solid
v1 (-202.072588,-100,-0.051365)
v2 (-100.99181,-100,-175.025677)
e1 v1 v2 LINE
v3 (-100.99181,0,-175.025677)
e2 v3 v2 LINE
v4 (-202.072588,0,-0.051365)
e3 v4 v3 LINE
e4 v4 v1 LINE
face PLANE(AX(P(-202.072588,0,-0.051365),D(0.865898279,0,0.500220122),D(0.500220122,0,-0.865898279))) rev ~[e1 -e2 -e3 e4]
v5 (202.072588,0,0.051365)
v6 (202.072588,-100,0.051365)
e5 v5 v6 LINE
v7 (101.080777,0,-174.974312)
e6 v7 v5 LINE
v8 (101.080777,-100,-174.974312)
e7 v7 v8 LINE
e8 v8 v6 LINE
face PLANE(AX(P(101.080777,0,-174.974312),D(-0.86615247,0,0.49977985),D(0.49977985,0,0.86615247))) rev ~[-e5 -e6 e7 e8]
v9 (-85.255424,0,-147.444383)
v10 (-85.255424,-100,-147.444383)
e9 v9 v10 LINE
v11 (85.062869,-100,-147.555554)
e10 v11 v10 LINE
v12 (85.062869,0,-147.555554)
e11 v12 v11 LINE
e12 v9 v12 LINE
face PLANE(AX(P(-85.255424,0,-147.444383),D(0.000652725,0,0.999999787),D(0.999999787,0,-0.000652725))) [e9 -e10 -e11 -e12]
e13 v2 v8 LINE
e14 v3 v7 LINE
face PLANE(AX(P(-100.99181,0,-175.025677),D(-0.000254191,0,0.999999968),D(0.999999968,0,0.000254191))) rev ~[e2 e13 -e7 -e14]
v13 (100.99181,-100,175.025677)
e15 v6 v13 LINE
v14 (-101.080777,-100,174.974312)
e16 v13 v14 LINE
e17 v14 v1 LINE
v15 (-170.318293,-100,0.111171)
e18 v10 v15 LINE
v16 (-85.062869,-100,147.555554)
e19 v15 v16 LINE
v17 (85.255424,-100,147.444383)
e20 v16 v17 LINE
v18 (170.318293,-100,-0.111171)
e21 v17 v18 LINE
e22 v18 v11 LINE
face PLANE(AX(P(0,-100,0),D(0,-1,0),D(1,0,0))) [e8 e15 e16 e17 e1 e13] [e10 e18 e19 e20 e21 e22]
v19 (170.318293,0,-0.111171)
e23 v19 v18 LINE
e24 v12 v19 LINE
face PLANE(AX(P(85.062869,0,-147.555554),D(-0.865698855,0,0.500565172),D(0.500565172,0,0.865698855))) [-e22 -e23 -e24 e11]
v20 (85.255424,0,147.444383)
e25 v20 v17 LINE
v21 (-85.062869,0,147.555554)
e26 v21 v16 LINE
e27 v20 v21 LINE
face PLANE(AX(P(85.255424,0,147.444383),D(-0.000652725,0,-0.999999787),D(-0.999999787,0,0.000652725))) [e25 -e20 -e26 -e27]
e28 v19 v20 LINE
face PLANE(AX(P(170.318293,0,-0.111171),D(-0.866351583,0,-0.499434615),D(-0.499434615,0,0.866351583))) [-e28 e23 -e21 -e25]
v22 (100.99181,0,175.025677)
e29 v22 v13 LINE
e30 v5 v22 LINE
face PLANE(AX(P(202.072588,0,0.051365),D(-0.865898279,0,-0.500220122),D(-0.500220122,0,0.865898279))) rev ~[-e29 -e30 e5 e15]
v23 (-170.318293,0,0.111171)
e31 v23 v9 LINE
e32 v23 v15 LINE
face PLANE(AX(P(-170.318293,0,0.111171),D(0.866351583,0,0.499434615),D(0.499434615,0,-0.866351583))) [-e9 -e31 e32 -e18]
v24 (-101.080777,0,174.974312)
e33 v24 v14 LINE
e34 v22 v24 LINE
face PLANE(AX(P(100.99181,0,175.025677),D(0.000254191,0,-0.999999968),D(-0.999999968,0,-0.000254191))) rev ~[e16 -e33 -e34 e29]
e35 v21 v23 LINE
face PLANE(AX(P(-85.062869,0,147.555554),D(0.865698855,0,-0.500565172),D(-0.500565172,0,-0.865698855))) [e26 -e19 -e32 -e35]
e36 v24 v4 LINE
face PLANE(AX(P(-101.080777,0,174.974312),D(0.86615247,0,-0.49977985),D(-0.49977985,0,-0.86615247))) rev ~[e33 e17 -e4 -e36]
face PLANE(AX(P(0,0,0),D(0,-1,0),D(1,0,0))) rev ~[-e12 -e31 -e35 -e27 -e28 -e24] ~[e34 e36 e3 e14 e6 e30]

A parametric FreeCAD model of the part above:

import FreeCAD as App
import Part
import Sketcher
from FreeCAD import Vector
Q = App.Units.Quantity

doc = App.newDocument("Part")
params = doc.addObject("Spreadsheet::Sheet", "Params")
for row, (alias, value) in enumerate([
    ("pad1_length", "100 mm"),
    ("pocket1_length", "191 mm"),
], start=1):
    params.set(f"A{row}", alias)
    params.set(f"B{row}", "=" + value)
    params.setAlias(f"B{row}", alias)

body = doc.addObject("PartDesign::Body", "Body")

sketch1 = body.newObject("Sketcher::SketchObject", "Sketch")
sketch1.AttachmentSupport = (doc.getObject("XZ_Plane"), [""])
sketch1.MapMode = "FlatFace"
sketch1.addGeometry([
    Part.LineSegment(Vector(-202, 0, 0), Vector(-101, -175, 0)),
    Part.LineSegment(Vector(-101, -175, 0), Vector(101, -175, 0)),
    Part.LineSegment(Vector(101, -175, 0), Vector(202, 0, 0)),
    Part.LineSegment(Vector(202, 0, 0), Vector(101, 175, 0)),
    Part.LineSegment(Vector(101, 175, 0), Vector(-101, 175, 0)),
    Part.LineSegment(Vector(-101, 175, 0), Vector(-202, 0, 0)),
], False)
sketch1.addConstraint([
    Sketcher.Constraint("Coincident", 0, 2, 1, 1),
    Sketcher.Constraint("Coincident", 1, 2, 2, 1),
    Sketcher.Constraint("Coincident", 2, 2, 3, 1),
    Sketcher.Constraint("Coincident", 3, 2, 4, 1),
    Sketcher.Constraint("Coincident", 4, 2, 5, 1),
    Sketcher.Constraint("Coincident", 5, 2, 0, 1),
    Sketcher.Constraint("Symmetric", 0, 2, 3, 2, -1, 1),
    Sketcher.Constraint("Symmetric", 1, 2, 4, 2, -1, 1),
    Sketcher.Constraint("Symmetric", 2, 2, 5, 2, -1, 1),
    Sketcher.Constraint("Equal", 0, 1),
    Sketcher.Constraint("Equal", 1, 2),
    Sketcher.Constraint("DistanceX", 0, 2, 2, 2, Q("303.064398 mm")),
    Sketcher.Constraint("DistanceX", 0, 2, -1, 1, Q("100.99181 mm")),
    Sketcher.Constraint("DistanceY", 1, 2, -1, 1, Q("174.974312 mm")),
    Sketcher.Constraint("DistanceX", 1, 2, 2, 2, Q("100.991811 mm")),
])
pad1 = body.newObject("PartDesign::Pad", "Pad")
pad1.Profile = sketch1
pad1.setExpression("Length", "Params.pad1_length")

sketch2 = body.newObject("Sketcher::SketchObject", "Sketch001")
sketch2.AttachmentSupport = (doc.getObject("XZ_Plane"), [""])
sketch2.MapMode = "FlatFace"
sketch2.addGeometry([
    Part.LineSegment(Vector(-170, 0, 0), Vector(-85, -147, 0)),
    Part.LineSegment(Vector(-85, -147, 0), Vector(85, -148, 0)),
    Part.LineSegment(Vector(85, -148, 0), Vector(170, 0, 0)),
    Part.LineSegment(Vector(170, 0, 0), Vector(85, 147, 0)),
    Part.LineSegment(Vector(85, 147, 0), Vector(-85, 148, 0)),
    Part.LineSegment(Vector(-85, 148, 0), Vector(-170, 0, 0)),
], False)
sketch2.addConstraint([
    Sketcher.Constraint("Coincident", 0, 2, 1, 1),
    Sketcher.Constraint("Coincident", 1, 2, 2, 1),
    Sketcher.Constraint("Coincident", 2, 2, 3, 1),
    Sketcher.Constraint("Coincident", 3, 2, 4, 1),
    Sketcher.Constraint("Coincident", 4, 2, 5, 1),
    Sketcher.Constraint("Coincident", 5, 2, 0, 1),
    Sketcher.Constraint("Symmetric", 0, 2, 3, 2, -1, 1),
    Sketcher.Constraint("Symmetric", 1, 2, 4, 2, -1, 1),
    Sketcher.Constraint("Symmetric", 2, 2, 5, 2, -1, 1),
    Sketcher.Constraint("Equal", 0, 1),
    Sketcher.Constraint("Equal", 1, 2),
    Sketcher.Constraint("Distance", 0, Q("170.318329 mm")),
    Sketcher.Constraint("DistanceX", -1, 1, 1, 2, Q("85.062869 mm")),
    Sketcher.Constraint("DistanceY", 2, 2, -1, 1, Q("0.111171 mm")),
    Sketcher.Constraint("DistanceY", 0, 2, 2, 2, Q("147.333212 mm")),
])
pocket1 = body.newObject("PartDesign::Pocket", "Pocket")
pocket1.Profile = sketch2
pocket1.setExpression("Length", "Params.pocket1_length")
pocket1.Reversed = True

doc.recompute()
